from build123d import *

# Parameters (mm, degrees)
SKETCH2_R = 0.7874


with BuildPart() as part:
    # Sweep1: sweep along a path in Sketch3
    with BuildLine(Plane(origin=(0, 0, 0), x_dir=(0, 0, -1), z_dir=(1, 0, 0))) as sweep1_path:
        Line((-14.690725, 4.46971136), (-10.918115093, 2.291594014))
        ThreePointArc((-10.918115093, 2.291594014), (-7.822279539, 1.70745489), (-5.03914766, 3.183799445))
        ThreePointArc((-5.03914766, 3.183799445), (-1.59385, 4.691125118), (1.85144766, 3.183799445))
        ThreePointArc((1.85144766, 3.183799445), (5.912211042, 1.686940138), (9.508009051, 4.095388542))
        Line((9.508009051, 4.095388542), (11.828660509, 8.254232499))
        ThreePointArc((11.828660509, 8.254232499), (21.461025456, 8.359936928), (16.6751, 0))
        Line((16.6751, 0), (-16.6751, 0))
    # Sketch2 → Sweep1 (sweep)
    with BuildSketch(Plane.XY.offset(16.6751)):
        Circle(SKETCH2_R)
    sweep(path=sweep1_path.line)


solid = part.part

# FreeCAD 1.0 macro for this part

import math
import FreeCAD as App
import Part
import Sketcher
Q = App.Units.Quantity

doc = App.newDocument("Part")
body = doc.addObject("PartDesign::Body", "Body")

# Sketch on XY plane
sketch1 = body.newObject("Sketcher::SketchObject", "Sketch")
sketch1.AttachmentSupport = (doc.getObject("XY_Plane"), [""])
sketch1.MapMode = "FlatFace"
sketch1.AttachmentOffset = App.Placement(App.Vector(0, 0, 0.6565 * 25.4), App.Rotation())
sketch1.addGeometry(Part.Circle(App.Vector(0, 0, 0), App.Vector(0, 0, 1), 0.7874), False)
sketch1.addConstraint([
    Sketcher.Constraint("Coincident", 0, 3, -1, 1),
    Sketcher.Constraint("Diameter", 0, Q("0.062 in")),
])

# Sketch on YZ plane
sketch2 = body.newObject("Sketcher::SketchObject", "Sketch001")
sketch2.AttachmentSupport = (doc.getObject("YZ_Plane"), [""])
sketch2.MapMode = "FlatFace"
sketch2.addGeometry([
    Part.LineSegment(App.Vector(4.469711, 14.690725, 0), App.Vector(2.291594, 10.918115, 0)),  # 0
    Part.ArcOfCircle(Part.Circle(App.Vector(6.41604, 8.536865, 0), App.Vector(0, 0, 1), 4.7625), math.radians(150), math.radians(227.258977)),  # 1
    Part.ArcOfCircle(Part.Circle(App.Vector(0, 1.59385, 0), App.Vector(0, 0, 1), 4.691125), math.radians(-47.258977), math.radians(47.258977)),  # 2
    Part.ArcOfCircle(Part.Circle(App.Vector(6.41604, -5.349165, 0), App.Vector(0, 0, 1), 4.7625), math.radians(132.741023), math.radians(240.838309)),  # 3
    Part.LineSegment(App.Vector(4.095389, -9.508009, 0), App.Vector(8.254232, -11.828661, 0)),  # 4
    Part.ArcOfCircle(Part.Circle(App.Vector(5.5499, -16.6751, 0), App.Vector(0, 0, 1), 5.5499), math.radians(180), math.radians(420.838309)),  # 5
    Part.LineSegment(App.Vector(0, -16.6751, 0), App.Vector(0, 16.6751, 0)),  # 6
], False)
sketch2.addConstraint([
    Sketcher.Constraint("Tangent", 0, 2, 1, 1),
    Sketcher.Constraint("Tangent", 1, 2, 2, 2),
    Sketcher.Constraint("Tangent", 2, 1, 3, 1),
    Sketcher.Constraint("Tangent", 3, 2, 4, 1),
    Sketcher.Constraint("Tangent", 4, 2, 5, 2),
    Sketcher.Constraint("Tangent", 5, 1, 6, 1),
    Sketcher.Constraint("Vertical", 6),
    Sketcher.Constraint("Equal", 1, 3),
    Sketcher.Constraint("Symmetric", 5, 1, 6, 2, -1, 1),
    Sketcher.Constraint("PointOnObject", 2, 3, -2),
    Sketcher.Constraint("Vertical", 1, 3, 3, 3),
    Sketcher.Constraint("Angle", 0, Q("-120 deg")),
    Sketcher.Constraint("Radius", 1, Q("0.1875 in")),
    Sketcher.Constraint("Radius", 5, Q("0.2185 in")),
    Sketcher.Constraint("DistanceY", 6, 1, 6, 2, Q("1.313 in")),
    Sketcher.Constraint("Distance", 4, Q("0.1875 in")),
    Sketcher.Constraint("DistanceY", 2, 3, 0, 1, Q("0.515625 in")),
    Sketcher.Constraint("DistanceY", 0, 1, 6, 2, Q("0.078125 in")),
    Sketcher.Constraint("DistanceX", -1, 1, 1, 3, Q("0.2526 in")),
])
doc.recompute()

additivepipe = body.newObject("PartDesign::AdditivePipe", "AdditivePipe")
additivepipe.Profile = sketch1
additivepipe.Spine = (sketch2, ["Edge1", "Edge2", "Edge3", "Edge4", "Edge5", "Edge6", "Edge7"])

doc.recompute()
